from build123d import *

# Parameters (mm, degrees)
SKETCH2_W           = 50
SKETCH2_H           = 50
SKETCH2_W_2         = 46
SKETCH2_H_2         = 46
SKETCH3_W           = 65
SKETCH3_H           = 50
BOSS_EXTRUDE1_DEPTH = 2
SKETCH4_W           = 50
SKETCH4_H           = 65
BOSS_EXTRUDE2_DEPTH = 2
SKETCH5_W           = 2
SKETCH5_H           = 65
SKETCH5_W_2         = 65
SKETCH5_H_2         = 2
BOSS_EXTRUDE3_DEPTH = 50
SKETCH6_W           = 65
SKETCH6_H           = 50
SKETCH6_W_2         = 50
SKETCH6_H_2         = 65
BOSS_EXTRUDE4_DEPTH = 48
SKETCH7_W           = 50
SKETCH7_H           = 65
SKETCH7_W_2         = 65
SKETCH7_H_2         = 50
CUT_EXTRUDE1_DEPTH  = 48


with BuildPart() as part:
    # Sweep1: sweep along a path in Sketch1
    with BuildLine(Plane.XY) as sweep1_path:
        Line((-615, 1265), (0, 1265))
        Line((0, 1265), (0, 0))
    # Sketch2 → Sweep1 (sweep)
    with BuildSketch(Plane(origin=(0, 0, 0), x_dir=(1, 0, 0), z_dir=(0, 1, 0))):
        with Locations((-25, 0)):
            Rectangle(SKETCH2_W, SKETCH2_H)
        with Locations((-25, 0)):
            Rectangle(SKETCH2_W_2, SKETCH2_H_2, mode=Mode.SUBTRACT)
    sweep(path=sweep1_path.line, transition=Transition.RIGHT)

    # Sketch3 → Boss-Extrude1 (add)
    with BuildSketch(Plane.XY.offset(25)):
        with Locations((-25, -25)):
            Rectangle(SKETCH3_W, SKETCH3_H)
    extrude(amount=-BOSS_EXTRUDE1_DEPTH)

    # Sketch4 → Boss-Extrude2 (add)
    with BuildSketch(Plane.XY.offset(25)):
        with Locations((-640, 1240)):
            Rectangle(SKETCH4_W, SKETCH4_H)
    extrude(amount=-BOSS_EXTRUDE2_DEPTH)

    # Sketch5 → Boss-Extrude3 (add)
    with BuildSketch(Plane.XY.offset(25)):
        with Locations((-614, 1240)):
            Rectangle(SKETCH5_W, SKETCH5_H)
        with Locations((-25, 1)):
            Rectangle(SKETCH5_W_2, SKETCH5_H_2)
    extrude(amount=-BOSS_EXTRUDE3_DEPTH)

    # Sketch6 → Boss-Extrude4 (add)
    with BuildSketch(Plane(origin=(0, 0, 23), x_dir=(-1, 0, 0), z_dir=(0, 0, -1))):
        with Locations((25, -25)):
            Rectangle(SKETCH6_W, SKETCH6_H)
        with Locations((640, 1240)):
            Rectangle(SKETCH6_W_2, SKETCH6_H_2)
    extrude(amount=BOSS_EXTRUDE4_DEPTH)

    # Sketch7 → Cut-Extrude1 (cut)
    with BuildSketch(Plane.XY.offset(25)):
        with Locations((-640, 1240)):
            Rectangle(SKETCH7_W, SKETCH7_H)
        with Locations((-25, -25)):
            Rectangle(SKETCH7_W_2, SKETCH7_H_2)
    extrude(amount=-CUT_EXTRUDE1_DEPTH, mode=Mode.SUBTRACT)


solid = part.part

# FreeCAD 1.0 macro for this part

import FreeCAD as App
import Part
import Sketcher
from FreeCAD import Vector

doc = App.newDocument("Part")
params = doc.addObject("Spreadsheet::Sheet", "Params")
for row, (alias, value) in enumerate([
    ("sketch1_width", "50 mm"),
    ("sketch1_width2", "46 mm"),
    ("sketch2_width", "615 mm"),
    ("sketch2_height", "1265 mm"),
    ("sketch3_width", "65 mm"),
    ("sketch3_height", "50 mm"),
    ("pad1_length", "2 mm"),
    ("sketch4_width", "50 mm"),
    ("sketch4_height", "65 mm"),
    ("pad2_length", "2 mm"),
    ("sketch5_width", "2 mm"),
    ("sketch5_width2", "65 mm"),
    ("pad3_length", "50 mm"),
    ("sketch6_width", "65 mm"),
    ("sketch6_width2", "50 mm"),
    ("pad4_length", "48 mm"),
    ("sketch7_width", "50 mm"),
    ("sketch7_width2", "65 mm"),
    ("pocket1_length", "48 mm"),
], start=1):
    params.set(f"A{row}", alias)
    params.set(f"B{row}", "=" + value)
    params.setAlias(f"B{row}", alias)

body = doc.addObject("PartDesign::Body", "Body")

# Sketch on XZ plane
sketch1 = body.newObject("Sketcher::SketchObject", "Sketch")
sketch1.AttachmentSupport = (doc.getObject("XZ_Plane"), [""])
sketch1.MapMode = "FlatFace"
sketch1.addGeometry(Part.LineSegment(Vector(-50, -25, 0), Vector(-50, 25, 0)), False)
sketch1.addGeometry(Part.LineSegment(Vector(-50, 25, 0), Vector(0, 25, 0)), False)
sketch1.addGeometry(Part.LineSegment(Vector(0, 25, 0), Vector(0, -25, 0)), False)
sketch1.addGeometry(Part.LineSegment(Vector(0, -25, 0), Vector(-50, -25, 0)), False)
sketch1.addGeometry(Part.LineSegment(Vector(-2, 23, 0), Vector(-48, 23, 0)), False)
sketch1.addGeometry(Part.LineSegment(Vector(-48, 23, 0), Vector(-48, -23, 0)), False)
sketch1.addGeometry(Part.LineSegment(Vector(-48, -23, 0), Vector(-2, -23, 0)), False)
sketch1.addGeometry(Part.LineSegment(Vector(-2, -23, 0), Vector(-2, 23, 0)), False)
sketch1.addConstraint(Sketcher.Constraint("Coincident", 0, 2, 1, 1))
sketch1.addConstraint(Sketcher.Constraint("Coincident", 1, 2, 2, 1))
sketch1.addConstraint(Sketcher.Constraint("Coincident", 2, 2, 3, 1))
sketch1.addConstraint(Sketcher.Constraint("Coincident", 3, 2, 0, 1))
sketch1.addConstraint(Sketcher.Constraint("Coincident", 4, 2, 5, 1))
sketch1.addConstraint(Sketcher.Constraint("Coincident", 5, 2, 6, 1))
sketch1.addConstraint(Sketcher.Constraint("Coincident", 6, 2, 7, 1))
sketch1.addConstraint(Sketcher.Constraint("Coincident", 7, 2, 4, 1))
sketch1.addConstraint(Sketcher.Constraint("Vertical", 0))
sketch1.addConstraint(Sketcher.Constraint("Horizontal", 1))
sketch1.addConstraint(Sketcher.Constraint("Vertical", 2))
sketch1.addConstraint(Sketcher.Constraint("Horizontal", 3))
sketch1.addConstraint(Sketcher.Constraint("Horizontal", 4))
sketch1.addConstraint(Sketcher.Constraint("Vertical", 5))
sketch1.addConstraint(Sketcher.Constraint("Horizontal", 6))
sketch1.addConstraint(Sketcher.Constraint("Vertical", 7))
sketch1.addConstraint(Sketcher.Constraint("Symmetric", 1, 2, 2, 2, -1, 1))
sketch1.addConstraint(Sketcher.Constraint("Equal", 3, 0))
sketch1.addConstraint(Sketcher.Constraint("Equal", 6, 5))
sketch1.addConstraint(Sketcher.Constraint("DistanceX", 1, 1, 1, 2, 50.0))
sketch1.addConstraint(Sketcher.Constraint("DistanceX", 4, 2, 4, 1, 46.0))
sketch1.addConstraint(Sketcher.Constraint("DistanceX", 4, 2, -1, 1, 48.0))
sketch1.addConstraint(Sketcher.Constraint("DistanceY", -1, 1, 4, 2, 23.0))
sketch1.setExpression("Constraints[19]", "Params.sketch1_width")
sketch1.setExpression("Constraints[20]", "Params.sketch1_width2")

# Sketch on XY plane
sketch2 = body.newObject("Sketcher::SketchObject", "Sketch001")
sketch2.AttachmentSupport = (doc.getObject("XY_Plane"), [""])
sketch2.MapMode = "FlatFace"
sketch2.addGeometry(Part.LineSegment(Vector(-615, 1265, 0), Vector(0, 1265, 0)), False)
sketch2.addGeometry(Part.LineSegment(Vector(0, 1265, 0), Vector(0, 0, 0)), False)
sketch2.addConstraint(Sketcher.Constraint("Coincident", 0, 2, 1, 1))
sketch2.addConstraint(Sketcher.Constraint("Horizontal", 0))
sketch2.addConstraint(Sketcher.Constraint("Vertical", 1))
sketch2.addConstraint(Sketcher.Constraint("Coincident", 1, 2, -1, 1))
sketch2.addConstraint(Sketcher.Constraint("DistanceX", 0, 1, 0, 2, 615.0))
sketch2.addConstraint(Sketcher.Constraint("DistanceY", 1, 2, 1, 1, 1265.0))
sketch2.setExpression("Constraints[4]", "Params.sketch2_width")
sketch2.setExpression("Constraints[5]", "Params.sketch2_height")
doc.recompute()

additivepipe = body.newObject("PartDesign::AdditivePipe", "AdditivePipe")
additivepipe.Profile = sketch1
additivepipe.Spine = (sketch2, ["Edge1", "Edge2"])
additivepipe.Transition = "Right corner"

# Sketch on XY plane
sketch3 = body.newObject("Sketcher::SketchObject", "Sketch002")
sketch3.AttachmentSupport = (doc.getObject("XY_Plane"), [""])
sketch3.MapMode = "FlatFace"
sketch3.AttachmentOffset = App.Placement(Vector(0, 0, 25), App.Rotation())
sketch3.addGeometry(Part.LineSegment(Vector(-58, 0, 0), Vector(-58, -50, 0)), False)
sketch3.addGeometry(Part.LineSegment(Vector(-58, -50, 0), Vector(8, -50, 0)), False)
sketch3.addGeometry(Part.LineSegment(Vector(8, -50, 0), Vector(8, 0, 0)), False)
sketch3.addGeometry(Part.LineSegment(Vector(8, 0, 0), Vector(-58, 0, 0)), False)
sketch3.addConstraint(Sketcher.Constraint("Coincident", 0, 2, 1, 1))
sketch3.addConstraint(Sketcher.Constraint("Coincident", 1, 2, 2, 1))
sketch3.addConstraint(Sketcher.Constraint("Coincident", 2, 2, 3, 1))
sketch3.addConstraint(Sketcher.Constraint("Coincident", 3, 2, 0, 1))
sketch3.addConstraint(Sketcher.Constraint("Vertical", 0))
sketch3.addConstraint(Sketcher.Constraint("Horizontal", 1))
sketch3.addConstraint(Sketcher.Constraint("Vertical", 2))
sketch3.addConstraint(Sketcher.Constraint("Horizontal", 3))
sketch3.addConstraint(Sketcher.Constraint("PointOnObject", 2, 2, -1))
sketch3.addConstraint(Sketcher.Constraint("DistanceX", 1, 1, 1, 2, 65.0))
sketch3.addConstraint(Sketcher.Constraint("DistanceY", 0, 2, 0, 1, 50.0))
sketch3.addConstraint(Sketcher.Constraint("DistanceX", 0, 2, -1, 1, 57.5))
sketch3.setExpression("Constraints[9]", "Params.sketch3_width")
sketch3.setExpression("Constraints[10]", "Params.sketch3_height")
pad1 = body.newObject("PartDesign::Pad", "Pad")
pad1.Profile = sketch3
pad1.setExpression("Length", "Params.pad1_length")
pad1.Reversed = True

# Sketch on XY plane
sketch4 = body.newObject("Sketcher::SketchObject", "Sketch003")
sketch4.AttachmentSupport = (doc.getObject("XY_Plane"), [""])
sketch4.MapMode = "FlatFace"
sketch4.AttachmentOffset = App.Placement(Vector(0, 0, 25), App.Rotation())
sketch4.addGeometry(Part.LineSegment(Vector(-665, 1272, 0), Vector(-665, 1208, 0)), False)
sketch4.addGeometry(Part.LineSegment(Vector(-665, 1208, 0), Vector(-615, 1208, 0)), False)
sketch4.addGeometry(Part.LineSegment(Vector(-615, 1208, 0), Vector(-615, 1272, 0)), False)
sketch4.addGeometry(Part.LineSegment(Vector(-615, 1272, 0), Vector(-665, 1272, 0)), False)
sketch4.addConstraint(Sketcher.Constraint("Coincident", 0, 2, 1, 1))
sketch4.addConstraint(Sketcher.Constraint("Coincident", 1, 2, 2, 1))
sketch4.addConstraint(Sketcher.Constraint("Coincident", 2, 2, 3, 1))
sketch4.addConstraint(Sketcher.Constraint("Coincident", 3, 2, 0, 1))
sketch4.addConstraint(Sketcher.Constraint("Vertical", 0))
sketch4.addConstraint(Sketcher.Constraint("Horizontal", 1))
sketch4.addConstraint(Sketcher.Constraint("Vertical", 2))
sketch4.addConstraint(Sketcher.Constraint("Horizontal", 3))
sketch4.addConstraint(Sketcher.Constraint("DistanceX", 1, 1, 1, 2, 50.0))
sketch4.addConstraint(Sketcher.Constraint("DistanceY", 0, 2, 0, 1, 65.0))
sketch4.addConstraint(Sketcher.Constraint("DistanceX", 0, 2, -1, 1, 665.0))
sketch4.addConstraint(Sketcher.Constraint("DistanceY", -1, 1, 0, 2, 1207.5))
sketch4.setExpression("Constraints[8]", "Params.sketch4_width")
sketch4.setExpression("Constraints[9]", "Params.sketch4_height")
pad2 = body.newObject("PartDesign::Pad", "Pad001")
pad2.Profile = sketch4
pad2.setExpression("Length", "Params.pad2_length")
pad2.Reversed = True

# Sketch on XY plane
sketch5 = body.newObject("Sketcher::SketchObject", "Sketch004")
sketch5.AttachmentSupport = (doc.getObject("XY_Plane"), [""])
sketch5.MapMode = "FlatFace"
sketch5.AttachmentOffset = App.Placement(Vector(0, 0, 25), App.Rotation())
sketch5.addGeometry(Part.LineSegment(Vector(-615, 1272.5, 0), Vector(-615, 1207.5, 0)), False)
sketch5.addGeometry(Part.LineSegment(Vector(-615, 1207.5, 0), Vector(-613, 1207.5, 0)), False)
sketch5.addGeometry(Part.LineSegment(Vector(-613, 1207.5, 0), Vector(-613, 1272.5, 0)), False)
sketch5.addGeometry(Part.LineSegment(Vector(-613, 1272.5, 0), Vector(-615, 1272.5, 0)), False)
sketch5.addGeometry(Part.LineSegment(Vector(-57.5, 2, 0), Vector(-57.5, 0, 0)), False)
sketch5.addGeometry(Part.LineSegment(Vector(-57.5, 0, 0), Vector(7.5, 0, 0)), False)
sketch5.addGeometry(Part.LineSegment(Vector(7.5, 0, 0), Vector(7.5, 2, 0)), False)
sketch5.addGeometry(Part.LineSegment(Vector(7.5, 2, 0), Vector(-57.5, 2, 0)), False)
sketch5.addConstraint(Sketcher.Constraint("Coincident", 0, 2, 1, 1))
sketch5.addConstraint(Sketcher.Constraint("Coincident", 1, 2, 2, 1))
sketch5.addConstraint(Sketcher.Constraint("Coincident", 2, 2, 3, 1))
sketch5.addConstraint(Sketcher.Constraint("Coincident", 3, 2, 0, 1))
sketch5.addConstraint(Sketcher.Constraint("Coincident", 4, 2, 5, 1))
sketch5.addConstraint(Sketcher.Constraint("Coincident", 5, 2, 6, 1))
sketch5.addConstraint(Sketcher.Constraint("Coincident", 6, 2, 7, 1))
sketch5.addConstraint(Sketcher.Constraint("Coincident", 7, 2, 4, 1))
sketch5.addConstraint(Sketcher.Constraint("Vertical", 0))
sketch5.addConstraint(Sketcher.Constraint("Horizontal", 1))
sketch5.addConstraint(Sketcher.Constraint("Vertical", 2))
sketch5.addConstraint(Sketcher.Constraint("Horizontal", 3))
sketch5.addConstraint(Sketcher.Constraint("Vertical", 4))
sketch5.addConstraint(Sketcher.Constraint("Horizontal", 5))
sketch5.addConstraint(Sketcher.Constraint("Vertical", 6))
sketch5.addConstraint(Sketcher.Constraint("Horizontal", 7))
sketch5.addConstraint(Sketcher.Constraint("PointOnObject", 4, 2, -1))
sketch5.addConstraint(Sketcher.Constraint("Equal", 7, 0))
sketch5.addConstraint(Sketcher.Constraint("Equal", 3, 4))
sketch5.addConstraint(Sketcher.Constraint("DistanceX", 1, 1, 1, 2, 2.0))
sketch5.addConstraint(Sketcher.Constraint("DistanceX", 5, 1, 5, 2, 65.0))
sketch5.addConstraint(Sketcher.Constraint("DistanceX", 0, 2, -1, 1, 615.0))
sketch5.addConstraint(Sketcher.Constraint("DistanceY", -1, 1, 0, 2, 1207.5))
sketch5.addConstraint(Sketcher.Constraint("DistanceX", 4, 2, -1, 1, 57.5))
sketch5.setExpression("Constraints[19]", "Params.sketch5_width")
sketch5.setExpression("Constraints[20]", "Params.sketch5_width2")
pad3 = body.newObject("PartDesign::Pad", "Pad002")
pad3.Profile = sketch5
pad3.setExpression("Length", "Params.pad3_length")
pad3.Reversed = True

# Sketch on XY plane
sketch6 = body.newObject("Sketcher::SketchObject", "Sketch005")
sketch6.AttachmentSupport = (doc.getObject("XY_Plane"), [""])
sketch6.MapMode = "FlatFace"
sketch6.AttachmentOffset = App.Placement(Vector(0, 0, 23), App.Rotation())
sketch6.addGeometry(Part.LineSegment(Vector(8, 0, 0), Vector(8, -50, 0)), False)
sketch6.addGeometry(Part.LineSegment(Vector(8, -50, 0), Vector(-58, -50, 0)), False)
sketch6.addGeometry(Part.LineSegment(Vector(-58, -50, 0), Vector(-58, 0, 0)), False)
sketch6.addGeometry(Part.LineSegment(Vector(-58, 0, 0), Vector(8, 0, 0)), False)
sketch6.addGeometry(Part.LineSegment(Vector(-615, 1272, 0), Vector(-615, 1208, 0)), False)
sketch6.addGeometry(Part.LineSegment(Vector(-615, 1208, 0), Vector(-665, 1208, 0)), False)
sketch6.addGeometry(Part.LineSegment(Vector(-665, 1208, 0), Vector(-665, 1272, 0)), False)
sketch6.addGeometry(Part.LineSegment(Vector(-665, 1272, 0), Vector(-615, 1272, 0)), False)
sketch6.addConstraint(Sketcher.Constraint("Coincident", 0, 2, 1, 1))
sketch6.addConstraint(Sketcher.Constraint("Coincident", 1, 2, 2, 1))
sketch6.addConstraint(Sketcher.Constraint("Coincident", 2, 2, 3, 1))
sketch6.addConstraint(Sketcher.Constraint("Coincident", 3, 2, 0, 1))
sketch6.addConstraint(Sketcher.Constraint("Coincident", 4, 2, 5, 1))
sketch6.addConstraint(Sketcher.Constraint("Coincident", 5, 2, 6, 1))
sketch6.addConstraint(Sketcher.Constraint("Coincident", 6, 2, 7, 1))
sketch6.addConstraint(Sketcher.Constraint("Coincident", 7, 2, 4, 1))
sketch6.addConstraint(Sketcher.Constraint("Vertical", 0))
sketch6.addConstraint(Sketcher.Constraint("Horizontal", 1))
sketch6.addConstraint(Sketcher.Constraint("Vertical", 2))
sketch6.addConstraint(Sketcher.Constraint("Horizontal", 3))
sketch6.addConstraint(Sketcher.Constraint("Vertical", 4))
sketch6.addConstraint(Sketcher.Constraint("Horizontal", 5))
sketch6.addConstraint(Sketcher.Constraint("Vertical", 6))
sketch6.addConstraint(Sketcher.Constraint("Horizontal", 7))
sketch6.addConstraint(Sketcher.Constraint("PointOnObject", 2, 2, -1))
sketch6.addConstraint(Sketcher.Constraint("Equal", 7, 0))
sketch6.addConstraint(Sketcher.Constraint("Equal", 3, 4))
sketch6.addConstraint(Sketcher.Constraint("DistanceX", 1, 2, 1, 1, 65.0))
sketch6.addConstraint(Sketcher.Constraint("DistanceX", 5, 2, 5, 1, 50.0))
sketch6.addConstraint(Sketcher.Constraint("DistanceX", 4, 2, -1, 1, 615.0))
sketch6.addConstraint(Sketcher.Constraint("DistanceX", -1, 1, 0, 2, 7.5))
sketch6.addConstraint(Sketcher.Constraint("DistanceY", -1, 1, 4, 2, 1207.5))
sketch6.setExpression("Constraints[19]", "Params.sketch6_width")
sketch6.setExpression("Constraints[20]", "Params.sketch6_width2")
pad4 = body.newObject("PartDesign::Pad", "Pad003")
pad4.Profile = sketch6
pad4.setExpression("Length", "Params.pad4_length")
pad4.Reversed = True

# Sketch on XY plane
sketch7 = body.newObject("Sketcher::SketchObject", "Sketch006")
sketch7.AttachmentSupport = (doc.getObject("XY_Plane"), [""])
sketch7.MapMode = "FlatFace"
sketch7.AttachmentOffset = App.Placement(Vector(0, 0, 25), App.Rotation())
sketch7.addGeometry(Part.LineSegment(Vector(-665, 1272, 0), Vector(-665, 1208, 0)), False)
sketch7.addGeometry(Part.LineSegment(Vector(-665, 1208, 0), Vector(-615, 1208, 0)), False)
sketch7.addGeometry(Part.LineSegment(Vector(-615, 1208, 0), Vector(-615, 1272, 0)), False)
sketch7.addGeometry(Part.LineSegment(Vector(-615, 1272, 0), Vector(-665, 1272, 0)), False)
sketch7.addGeometry(Part.LineSegment(Vector(-58, 0, 0), Vector(-58, -50, 0)), False)
sketch7.addGeometry(Part.LineSegment(Vector(-58, -50, 0), Vector(8, -50, 0)), False)
sketch7.addGeometry(Part.LineSegment(Vector(8, -50, 0), Vector(8, 0, 0)), False)
sketch7.addGeometry(Part.LineSegment(Vector(8, 0, 0), Vector(-58, 0, 0)), False)
sketch7.addConstraint(Sketcher.Constraint("Coincident", 0, 2, 1, 1))
sketch7.addConstraint(Sketcher.Constraint("Coincident", 1, 2, 2, 1))
sketch7.addConstraint(Sketcher.Constraint("Coincident", 2, 2, 3, 1))
sketch7.addConstraint(Sketcher.Constraint("Coincident", 3, 2, 0, 1))
sketch7.addConstraint(Sketcher.Constraint("Coincident", 4, 2, 5, 1))
sketch7.addConstraint(Sketcher.Constraint("Coincident", 5, 2, 6, 1))
sketch7.addConstraint(Sketcher.Constraint("Coincident", 6, 2, 7, 1))
sketch7.addConstraint(Sketcher.Constraint("Coincident", 7, 2, 4, 1))
sketch7.addConstraint(Sketcher.Constraint("Vertical", 0))
sketch7.addConstraint(Sketcher.Constraint("Horizontal", 1))
sketch7.addConstraint(Sketcher.Constraint("Vertical", 2))
sketch7.addConstraint(Sketcher.Constraint("Horizontal", 3))
sketch7.addConstraint(Sketcher.Constraint("Vertical", 4))
sketch7.addConstraint(Sketcher.Constraint("Horizontal", 5))
sketch7.addConstraint(Sketcher.Constraint("Vertical", 6))
sketch7.addConstraint(Sketcher.Constraint("Horizontal", 7))
sketch7.addConstraint(Sketcher.Constraint("PointOnObject", 6, 2, -1))
sketch7.addConstraint(Sketcher.Constraint("Equal", 7, 0))
sketch7.addConstraint(Sketcher.Constraint("Equal", 3, 4))
sketch7.addConstraint(Sketcher.Constraint("DistanceX", 1, 1, 1, 2, 50.0))
sketch7.addConstraint(Sketcher.Constraint("DistanceX", 5, 1, 5, 2, 65.0))
sketch7.addConstraint(Sketcher.Constraint("DistanceX", 0, 2, -1, 1, 665.0))
sketch7.addConstraint(Sketcher.Constraint("DistanceY", -1, 1, 0, 2, 1207.5))
sketch7.addConstraint(Sketcher.Constraint("DistanceX", 4, 2, -1, 1, 57.5))
sketch7.setExpression("Constraints[19]", "Params.sketch7_width")
sketch7.setExpression("Constraints[20]", "Params.sketch7_width2")
pocket1 = body.newObject("PartDesign::Pocket", "Pocket")
pocket1.Profile = sketch7
pocket1.setExpression("Length", "Params.pocket1_length")

doc.recompute()
